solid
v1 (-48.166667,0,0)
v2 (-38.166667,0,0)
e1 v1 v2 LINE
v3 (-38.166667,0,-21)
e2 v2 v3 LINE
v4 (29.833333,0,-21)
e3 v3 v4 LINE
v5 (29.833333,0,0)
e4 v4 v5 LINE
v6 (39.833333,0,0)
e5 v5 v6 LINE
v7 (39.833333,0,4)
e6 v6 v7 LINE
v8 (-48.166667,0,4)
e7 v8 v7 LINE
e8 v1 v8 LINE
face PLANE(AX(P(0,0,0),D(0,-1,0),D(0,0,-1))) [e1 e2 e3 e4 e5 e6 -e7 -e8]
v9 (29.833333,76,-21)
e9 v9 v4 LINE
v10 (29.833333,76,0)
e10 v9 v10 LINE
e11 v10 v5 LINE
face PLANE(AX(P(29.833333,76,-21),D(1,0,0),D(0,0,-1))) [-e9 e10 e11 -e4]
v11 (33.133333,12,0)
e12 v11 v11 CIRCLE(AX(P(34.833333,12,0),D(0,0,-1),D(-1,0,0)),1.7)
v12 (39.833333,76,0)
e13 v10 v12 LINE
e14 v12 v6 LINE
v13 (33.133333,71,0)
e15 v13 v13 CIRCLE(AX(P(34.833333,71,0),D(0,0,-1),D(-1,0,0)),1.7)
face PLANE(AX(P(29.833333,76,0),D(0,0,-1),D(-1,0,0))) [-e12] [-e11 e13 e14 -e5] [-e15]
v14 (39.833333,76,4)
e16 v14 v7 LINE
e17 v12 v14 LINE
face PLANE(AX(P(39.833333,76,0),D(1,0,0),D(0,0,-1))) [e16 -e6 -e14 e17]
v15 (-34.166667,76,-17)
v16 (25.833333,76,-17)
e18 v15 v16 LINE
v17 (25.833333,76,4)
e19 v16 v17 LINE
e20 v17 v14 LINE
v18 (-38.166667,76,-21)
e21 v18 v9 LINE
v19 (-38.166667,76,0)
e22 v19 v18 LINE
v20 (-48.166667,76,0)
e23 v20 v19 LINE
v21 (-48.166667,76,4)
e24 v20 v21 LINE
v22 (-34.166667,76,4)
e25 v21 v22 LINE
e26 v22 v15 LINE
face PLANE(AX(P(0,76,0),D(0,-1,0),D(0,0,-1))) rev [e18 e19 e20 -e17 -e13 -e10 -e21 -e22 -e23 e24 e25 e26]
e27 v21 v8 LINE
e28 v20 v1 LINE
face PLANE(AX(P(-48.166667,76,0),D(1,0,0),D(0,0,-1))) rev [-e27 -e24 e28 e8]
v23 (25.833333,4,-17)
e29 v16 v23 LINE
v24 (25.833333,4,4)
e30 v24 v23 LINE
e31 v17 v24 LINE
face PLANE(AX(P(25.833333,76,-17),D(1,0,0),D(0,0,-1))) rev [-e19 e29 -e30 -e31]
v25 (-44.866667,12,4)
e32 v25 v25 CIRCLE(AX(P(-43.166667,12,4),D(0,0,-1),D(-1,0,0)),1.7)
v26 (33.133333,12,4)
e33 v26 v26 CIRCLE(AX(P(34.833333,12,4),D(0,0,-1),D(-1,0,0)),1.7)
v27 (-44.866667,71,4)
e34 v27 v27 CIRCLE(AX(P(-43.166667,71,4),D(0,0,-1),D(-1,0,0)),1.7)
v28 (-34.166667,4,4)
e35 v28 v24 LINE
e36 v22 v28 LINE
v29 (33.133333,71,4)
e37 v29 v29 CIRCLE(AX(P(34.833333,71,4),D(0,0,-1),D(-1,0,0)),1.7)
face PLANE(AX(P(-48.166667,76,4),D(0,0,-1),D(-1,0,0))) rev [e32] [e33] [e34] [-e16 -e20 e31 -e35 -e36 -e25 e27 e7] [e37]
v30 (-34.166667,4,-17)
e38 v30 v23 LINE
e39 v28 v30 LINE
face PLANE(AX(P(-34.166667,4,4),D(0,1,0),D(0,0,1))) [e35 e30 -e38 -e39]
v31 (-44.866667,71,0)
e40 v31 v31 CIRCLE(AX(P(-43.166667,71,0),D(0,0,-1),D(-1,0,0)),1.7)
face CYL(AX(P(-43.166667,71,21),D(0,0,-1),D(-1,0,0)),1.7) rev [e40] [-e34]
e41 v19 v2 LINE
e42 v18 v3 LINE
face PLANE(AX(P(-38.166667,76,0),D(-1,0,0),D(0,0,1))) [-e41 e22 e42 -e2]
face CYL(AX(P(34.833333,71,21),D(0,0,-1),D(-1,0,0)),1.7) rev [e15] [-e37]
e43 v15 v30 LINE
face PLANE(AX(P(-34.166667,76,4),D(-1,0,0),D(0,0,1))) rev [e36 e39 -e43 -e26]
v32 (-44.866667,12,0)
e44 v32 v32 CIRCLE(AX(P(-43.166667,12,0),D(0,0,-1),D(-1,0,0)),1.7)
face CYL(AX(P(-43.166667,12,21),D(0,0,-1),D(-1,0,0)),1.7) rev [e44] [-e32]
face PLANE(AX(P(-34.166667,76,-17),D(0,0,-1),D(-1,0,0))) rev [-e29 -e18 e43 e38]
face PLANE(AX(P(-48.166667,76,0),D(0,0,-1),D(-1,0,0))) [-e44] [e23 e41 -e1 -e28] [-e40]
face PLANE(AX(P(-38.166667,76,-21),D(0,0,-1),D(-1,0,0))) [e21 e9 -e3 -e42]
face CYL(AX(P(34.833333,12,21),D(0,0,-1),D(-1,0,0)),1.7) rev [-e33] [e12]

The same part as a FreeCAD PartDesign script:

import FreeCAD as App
import Part
import Sketcher

V = App.Vector
Q = App.Units.Quantity


def add_polygon(sketch, points):
    """Adds a closed chain of lines whose ends are joined by coincident constraints."""
    first, n = sketch.GeometryCount, len(points)
    for a, b in zip(points, points[1:] + points[:1]):
        sketch.addGeometry(Part.LineSegment(App.Vector(*a, 0), App.Vector(*b, 0)), False)
    for i in range(n):
        sketch.addConstraint(Sketcher.Constraint("Coincident", first + i, 2, first + (i + 1) % n, 1))

doc = App.newDocument("Part")
params = doc.addObject("Spreadsheet::Sheet", "Params")
for row, (alias, value) in enumerate([
    ("sketch1_width", "10 mm"),
    ("sketch1_width2", "14 mm"),
    ("sketch1_width3", "60 mm"),
    ("sketch1_height", "4 mm"),
    ("sketch1_height2", "21 mm"),
    ("pad1_length", "76 mm"),
    ("sketch2_width", "60 mm"),
    ("sketch2_height", "4 mm"),
    ("pad2_length", "21 mm"),
    ("sketch3_diameter", "3.4 mm"),
    ("pocket1_length", "21 mm"),
], start=1):
    params.set(f"A{row}", alias)
    params.set(f"B{row}", "=" + value)
    params.setAlias(f"B{row}", alias)

body = doc.addObject("PartDesign::Body", "Body")

sketch1 = doc.addObject("Sketcher::SketchObject", "Sketch")
body.addObject(sketch1)
sketch1.AttachmentSupport = (doc.XZ_Plane, [""])
sketch1.MapMode = "FlatFace"
add_polygon(sketch1, [(-38.2, 0), (-48.2, 0), (-48.2, 4), (-34.2, 4), (-34.2, -17), (25.8, -17), (25.8, 4), (39.8, 4), (39.8, 0), (29.8, 0), (29.8, -21), (-38.2, -21)])
sketch1.addConstraint([
    Sketcher.Constraint("Horizontal", 0),
    Sketcher.Constraint("Vertical", 1),
    Sketcher.Constraint("Horizontal", 2),
    Sketcher.Constraint("Vertical", 3),
    Sketcher.Constraint("Horizontal", 4),
    Sketcher.Constraint("Vertical", 5),
    Sketcher.Constraint("Horizontal", 6),
    Sketcher.Constraint("Vertical", 7),
    Sketcher.Constraint("Horizontal", 8),
    Sketcher.Constraint("Vertical", 9),
    Sketcher.Constraint("Horizontal", 10),
    Sketcher.Constraint("Vertical", 11),
    Sketcher.Constraint("PointOnObject", 0, 2, -1),
    Sketcher.Constraint("PointOnObject", 7, 2, -1),
    Sketcher.Constraint("Horizontal", 2, 2, 5, 2),
    Sketcher.Constraint("Equal", 2, 6),
    Sketcher.Constraint("Equal", 0, 8),
    Sketcher.Constraint("Equal", 5, 9),
    Sketcher.Constraint("DistanceX", 0, 2, 0, 1, Q("10 mm")),
    Sketcher.Constraint("DistanceX", 2, 1, 2, 2, Q("14 mm")),
    Sketcher.Constraint("DistanceX", 4, 1, 4, 2, Q("60 mm")),
    Sketcher.Constraint("DistanceY", 1, 1, 1, 2, Q("4 mm")),
    Sketcher.Constraint("DistanceY", 3, 2, 3, 1, Q("21 mm")),
    Sketcher.Constraint("DistanceX", 0, 2, -1, 1, Q("48.166667 mm")),
])
sketch1.setExpression("Constraints[30]", "Params.sketch1_width")
sketch1.setExpression("Constraints[31]", "Params.sketch1_width2")
sketch1.setExpression("Constraints[32]", "Params.sketch1_width3")
sketch1.setExpression("Constraints[33]", "Params.sketch1_height")
sketch1.setExpression("Constraints[34]", "Params.sketch1_height2")
pad1 = doc.addObject("PartDesign::Pad", "Pad")
body.addObject(pad1)
pad1.Profile = sketch1
pad1.setExpression("Length", "Params.pad1_length")
pad1.Reversed = True

sketch2 = doc.addObject("Sketcher::SketchObject", "Sketch001")
body.addObject(sketch2)
sketch2.AttachmentSupport = (doc.XY_Plane, [""])
sketch2.MapMode = "FlatFace"
sketch2.AttachmentOffset = App.Placement(V(0, 0, -17), App.Rotation())
add_polygon(sketch2, [(-34.2, 4), (-34.2, 0), (25.8, 0), (25.8, 4)])
sketch2.addConstraint([
    Sketcher.Constraint("Vertical", 0),
    Sketcher.Constraint("Horizontal", 1),
    Sketcher.Constraint("Vertical", 2),
    Sketcher.Constraint("Horizontal", 3),
    Sketcher.Constraint("PointOnObject", 0, 2, -1),
    Sketcher.Constraint("DistanceX", 1, 1, 1, 2, Q("60 mm")),
    Sketcher.Constraint("DistanceY", 0, 2, 0, 1, Q("4 mm")),
    Sketcher.Constraint("DistanceX", 0, 2, -1, 1, Q("34.166667 mm")),
])
sketch2.setExpression("Constraints[9]", "Params.sketch2_width")
sketch2.setExpression("Constraints[10]", "Params.sketch2_height")
pad2 = doc.addObject("PartDesign::Pad", "Pad001")
body.addObject(pad2)
pad2.Profile = sketch2
pad2.setExpression("Length", "Params.pad2_length")

sketch3 = doc.addObject("Sketcher::SketchObject", "Sketch002")
body.addObject(sketch3)
sketch3.AttachmentSupport = (doc.XY_Plane, [""])
sketch3.MapMode = "FlatFace"
sketch3.addGeometry([
    Part.Circle(V(34.8, 71, 0), V(0, 0, 1), 1.7),
    Part.Circle(V(34.8, 12, 0), V(0, 0, 1), 1.7),
    Part.Circle(V(-43.2, 71, 0), V(0, 0, 1), 1.7),
    Part.Circle(V(-43.2, 12, 0), V(0, 0, 1), 1.7),
], False)
sketch3.addConstraint([
    Sketcher.Constraint("Equal", 0, 1),
    Sketcher.Constraint("Equal", 1, 2),
    Sketcher.Constraint("Equal", 2, 3),
    Sketcher.Constraint("Horizontal", 0, 3, 2, 3),
    Sketcher.Constraint("Horizontal", 1, 3, 3, 3),
    Sketcher.Constraint("Vertical", 0, 3, 1, 3),
    Sketcher.Constraint("Vertical", 2, 3, 3, 3),
    Sketcher.Constraint("Diameter", 0, Q("3.4 mm")),
    Sketcher.Constraint("DistanceY", -1, 1, 0, 3, Q("71 mm")),
    Sketcher.Constraint("DistanceY", -1, 1, 1, 3, Q("12 mm")),
    Sketcher.Constraint("DistanceX", 2, 3, 0, 3, Q("78 mm")),
    Sketcher.Constraint("DistanceX", -1, 1, 0, 3, Q("34.833333 mm")),
])
sketch3.setExpression("Constraints[7]", "Params.sketch3_diameter")
pocket1 = doc.addObject("PartDesign::Pocket", "Pocket")
body.addObject(pocket1)
pocket1.Profile = sketch3
pocket1.setExpression("Length", "Params.pocket1_length")
pocket1.Reversed = True

doc.recompute()
